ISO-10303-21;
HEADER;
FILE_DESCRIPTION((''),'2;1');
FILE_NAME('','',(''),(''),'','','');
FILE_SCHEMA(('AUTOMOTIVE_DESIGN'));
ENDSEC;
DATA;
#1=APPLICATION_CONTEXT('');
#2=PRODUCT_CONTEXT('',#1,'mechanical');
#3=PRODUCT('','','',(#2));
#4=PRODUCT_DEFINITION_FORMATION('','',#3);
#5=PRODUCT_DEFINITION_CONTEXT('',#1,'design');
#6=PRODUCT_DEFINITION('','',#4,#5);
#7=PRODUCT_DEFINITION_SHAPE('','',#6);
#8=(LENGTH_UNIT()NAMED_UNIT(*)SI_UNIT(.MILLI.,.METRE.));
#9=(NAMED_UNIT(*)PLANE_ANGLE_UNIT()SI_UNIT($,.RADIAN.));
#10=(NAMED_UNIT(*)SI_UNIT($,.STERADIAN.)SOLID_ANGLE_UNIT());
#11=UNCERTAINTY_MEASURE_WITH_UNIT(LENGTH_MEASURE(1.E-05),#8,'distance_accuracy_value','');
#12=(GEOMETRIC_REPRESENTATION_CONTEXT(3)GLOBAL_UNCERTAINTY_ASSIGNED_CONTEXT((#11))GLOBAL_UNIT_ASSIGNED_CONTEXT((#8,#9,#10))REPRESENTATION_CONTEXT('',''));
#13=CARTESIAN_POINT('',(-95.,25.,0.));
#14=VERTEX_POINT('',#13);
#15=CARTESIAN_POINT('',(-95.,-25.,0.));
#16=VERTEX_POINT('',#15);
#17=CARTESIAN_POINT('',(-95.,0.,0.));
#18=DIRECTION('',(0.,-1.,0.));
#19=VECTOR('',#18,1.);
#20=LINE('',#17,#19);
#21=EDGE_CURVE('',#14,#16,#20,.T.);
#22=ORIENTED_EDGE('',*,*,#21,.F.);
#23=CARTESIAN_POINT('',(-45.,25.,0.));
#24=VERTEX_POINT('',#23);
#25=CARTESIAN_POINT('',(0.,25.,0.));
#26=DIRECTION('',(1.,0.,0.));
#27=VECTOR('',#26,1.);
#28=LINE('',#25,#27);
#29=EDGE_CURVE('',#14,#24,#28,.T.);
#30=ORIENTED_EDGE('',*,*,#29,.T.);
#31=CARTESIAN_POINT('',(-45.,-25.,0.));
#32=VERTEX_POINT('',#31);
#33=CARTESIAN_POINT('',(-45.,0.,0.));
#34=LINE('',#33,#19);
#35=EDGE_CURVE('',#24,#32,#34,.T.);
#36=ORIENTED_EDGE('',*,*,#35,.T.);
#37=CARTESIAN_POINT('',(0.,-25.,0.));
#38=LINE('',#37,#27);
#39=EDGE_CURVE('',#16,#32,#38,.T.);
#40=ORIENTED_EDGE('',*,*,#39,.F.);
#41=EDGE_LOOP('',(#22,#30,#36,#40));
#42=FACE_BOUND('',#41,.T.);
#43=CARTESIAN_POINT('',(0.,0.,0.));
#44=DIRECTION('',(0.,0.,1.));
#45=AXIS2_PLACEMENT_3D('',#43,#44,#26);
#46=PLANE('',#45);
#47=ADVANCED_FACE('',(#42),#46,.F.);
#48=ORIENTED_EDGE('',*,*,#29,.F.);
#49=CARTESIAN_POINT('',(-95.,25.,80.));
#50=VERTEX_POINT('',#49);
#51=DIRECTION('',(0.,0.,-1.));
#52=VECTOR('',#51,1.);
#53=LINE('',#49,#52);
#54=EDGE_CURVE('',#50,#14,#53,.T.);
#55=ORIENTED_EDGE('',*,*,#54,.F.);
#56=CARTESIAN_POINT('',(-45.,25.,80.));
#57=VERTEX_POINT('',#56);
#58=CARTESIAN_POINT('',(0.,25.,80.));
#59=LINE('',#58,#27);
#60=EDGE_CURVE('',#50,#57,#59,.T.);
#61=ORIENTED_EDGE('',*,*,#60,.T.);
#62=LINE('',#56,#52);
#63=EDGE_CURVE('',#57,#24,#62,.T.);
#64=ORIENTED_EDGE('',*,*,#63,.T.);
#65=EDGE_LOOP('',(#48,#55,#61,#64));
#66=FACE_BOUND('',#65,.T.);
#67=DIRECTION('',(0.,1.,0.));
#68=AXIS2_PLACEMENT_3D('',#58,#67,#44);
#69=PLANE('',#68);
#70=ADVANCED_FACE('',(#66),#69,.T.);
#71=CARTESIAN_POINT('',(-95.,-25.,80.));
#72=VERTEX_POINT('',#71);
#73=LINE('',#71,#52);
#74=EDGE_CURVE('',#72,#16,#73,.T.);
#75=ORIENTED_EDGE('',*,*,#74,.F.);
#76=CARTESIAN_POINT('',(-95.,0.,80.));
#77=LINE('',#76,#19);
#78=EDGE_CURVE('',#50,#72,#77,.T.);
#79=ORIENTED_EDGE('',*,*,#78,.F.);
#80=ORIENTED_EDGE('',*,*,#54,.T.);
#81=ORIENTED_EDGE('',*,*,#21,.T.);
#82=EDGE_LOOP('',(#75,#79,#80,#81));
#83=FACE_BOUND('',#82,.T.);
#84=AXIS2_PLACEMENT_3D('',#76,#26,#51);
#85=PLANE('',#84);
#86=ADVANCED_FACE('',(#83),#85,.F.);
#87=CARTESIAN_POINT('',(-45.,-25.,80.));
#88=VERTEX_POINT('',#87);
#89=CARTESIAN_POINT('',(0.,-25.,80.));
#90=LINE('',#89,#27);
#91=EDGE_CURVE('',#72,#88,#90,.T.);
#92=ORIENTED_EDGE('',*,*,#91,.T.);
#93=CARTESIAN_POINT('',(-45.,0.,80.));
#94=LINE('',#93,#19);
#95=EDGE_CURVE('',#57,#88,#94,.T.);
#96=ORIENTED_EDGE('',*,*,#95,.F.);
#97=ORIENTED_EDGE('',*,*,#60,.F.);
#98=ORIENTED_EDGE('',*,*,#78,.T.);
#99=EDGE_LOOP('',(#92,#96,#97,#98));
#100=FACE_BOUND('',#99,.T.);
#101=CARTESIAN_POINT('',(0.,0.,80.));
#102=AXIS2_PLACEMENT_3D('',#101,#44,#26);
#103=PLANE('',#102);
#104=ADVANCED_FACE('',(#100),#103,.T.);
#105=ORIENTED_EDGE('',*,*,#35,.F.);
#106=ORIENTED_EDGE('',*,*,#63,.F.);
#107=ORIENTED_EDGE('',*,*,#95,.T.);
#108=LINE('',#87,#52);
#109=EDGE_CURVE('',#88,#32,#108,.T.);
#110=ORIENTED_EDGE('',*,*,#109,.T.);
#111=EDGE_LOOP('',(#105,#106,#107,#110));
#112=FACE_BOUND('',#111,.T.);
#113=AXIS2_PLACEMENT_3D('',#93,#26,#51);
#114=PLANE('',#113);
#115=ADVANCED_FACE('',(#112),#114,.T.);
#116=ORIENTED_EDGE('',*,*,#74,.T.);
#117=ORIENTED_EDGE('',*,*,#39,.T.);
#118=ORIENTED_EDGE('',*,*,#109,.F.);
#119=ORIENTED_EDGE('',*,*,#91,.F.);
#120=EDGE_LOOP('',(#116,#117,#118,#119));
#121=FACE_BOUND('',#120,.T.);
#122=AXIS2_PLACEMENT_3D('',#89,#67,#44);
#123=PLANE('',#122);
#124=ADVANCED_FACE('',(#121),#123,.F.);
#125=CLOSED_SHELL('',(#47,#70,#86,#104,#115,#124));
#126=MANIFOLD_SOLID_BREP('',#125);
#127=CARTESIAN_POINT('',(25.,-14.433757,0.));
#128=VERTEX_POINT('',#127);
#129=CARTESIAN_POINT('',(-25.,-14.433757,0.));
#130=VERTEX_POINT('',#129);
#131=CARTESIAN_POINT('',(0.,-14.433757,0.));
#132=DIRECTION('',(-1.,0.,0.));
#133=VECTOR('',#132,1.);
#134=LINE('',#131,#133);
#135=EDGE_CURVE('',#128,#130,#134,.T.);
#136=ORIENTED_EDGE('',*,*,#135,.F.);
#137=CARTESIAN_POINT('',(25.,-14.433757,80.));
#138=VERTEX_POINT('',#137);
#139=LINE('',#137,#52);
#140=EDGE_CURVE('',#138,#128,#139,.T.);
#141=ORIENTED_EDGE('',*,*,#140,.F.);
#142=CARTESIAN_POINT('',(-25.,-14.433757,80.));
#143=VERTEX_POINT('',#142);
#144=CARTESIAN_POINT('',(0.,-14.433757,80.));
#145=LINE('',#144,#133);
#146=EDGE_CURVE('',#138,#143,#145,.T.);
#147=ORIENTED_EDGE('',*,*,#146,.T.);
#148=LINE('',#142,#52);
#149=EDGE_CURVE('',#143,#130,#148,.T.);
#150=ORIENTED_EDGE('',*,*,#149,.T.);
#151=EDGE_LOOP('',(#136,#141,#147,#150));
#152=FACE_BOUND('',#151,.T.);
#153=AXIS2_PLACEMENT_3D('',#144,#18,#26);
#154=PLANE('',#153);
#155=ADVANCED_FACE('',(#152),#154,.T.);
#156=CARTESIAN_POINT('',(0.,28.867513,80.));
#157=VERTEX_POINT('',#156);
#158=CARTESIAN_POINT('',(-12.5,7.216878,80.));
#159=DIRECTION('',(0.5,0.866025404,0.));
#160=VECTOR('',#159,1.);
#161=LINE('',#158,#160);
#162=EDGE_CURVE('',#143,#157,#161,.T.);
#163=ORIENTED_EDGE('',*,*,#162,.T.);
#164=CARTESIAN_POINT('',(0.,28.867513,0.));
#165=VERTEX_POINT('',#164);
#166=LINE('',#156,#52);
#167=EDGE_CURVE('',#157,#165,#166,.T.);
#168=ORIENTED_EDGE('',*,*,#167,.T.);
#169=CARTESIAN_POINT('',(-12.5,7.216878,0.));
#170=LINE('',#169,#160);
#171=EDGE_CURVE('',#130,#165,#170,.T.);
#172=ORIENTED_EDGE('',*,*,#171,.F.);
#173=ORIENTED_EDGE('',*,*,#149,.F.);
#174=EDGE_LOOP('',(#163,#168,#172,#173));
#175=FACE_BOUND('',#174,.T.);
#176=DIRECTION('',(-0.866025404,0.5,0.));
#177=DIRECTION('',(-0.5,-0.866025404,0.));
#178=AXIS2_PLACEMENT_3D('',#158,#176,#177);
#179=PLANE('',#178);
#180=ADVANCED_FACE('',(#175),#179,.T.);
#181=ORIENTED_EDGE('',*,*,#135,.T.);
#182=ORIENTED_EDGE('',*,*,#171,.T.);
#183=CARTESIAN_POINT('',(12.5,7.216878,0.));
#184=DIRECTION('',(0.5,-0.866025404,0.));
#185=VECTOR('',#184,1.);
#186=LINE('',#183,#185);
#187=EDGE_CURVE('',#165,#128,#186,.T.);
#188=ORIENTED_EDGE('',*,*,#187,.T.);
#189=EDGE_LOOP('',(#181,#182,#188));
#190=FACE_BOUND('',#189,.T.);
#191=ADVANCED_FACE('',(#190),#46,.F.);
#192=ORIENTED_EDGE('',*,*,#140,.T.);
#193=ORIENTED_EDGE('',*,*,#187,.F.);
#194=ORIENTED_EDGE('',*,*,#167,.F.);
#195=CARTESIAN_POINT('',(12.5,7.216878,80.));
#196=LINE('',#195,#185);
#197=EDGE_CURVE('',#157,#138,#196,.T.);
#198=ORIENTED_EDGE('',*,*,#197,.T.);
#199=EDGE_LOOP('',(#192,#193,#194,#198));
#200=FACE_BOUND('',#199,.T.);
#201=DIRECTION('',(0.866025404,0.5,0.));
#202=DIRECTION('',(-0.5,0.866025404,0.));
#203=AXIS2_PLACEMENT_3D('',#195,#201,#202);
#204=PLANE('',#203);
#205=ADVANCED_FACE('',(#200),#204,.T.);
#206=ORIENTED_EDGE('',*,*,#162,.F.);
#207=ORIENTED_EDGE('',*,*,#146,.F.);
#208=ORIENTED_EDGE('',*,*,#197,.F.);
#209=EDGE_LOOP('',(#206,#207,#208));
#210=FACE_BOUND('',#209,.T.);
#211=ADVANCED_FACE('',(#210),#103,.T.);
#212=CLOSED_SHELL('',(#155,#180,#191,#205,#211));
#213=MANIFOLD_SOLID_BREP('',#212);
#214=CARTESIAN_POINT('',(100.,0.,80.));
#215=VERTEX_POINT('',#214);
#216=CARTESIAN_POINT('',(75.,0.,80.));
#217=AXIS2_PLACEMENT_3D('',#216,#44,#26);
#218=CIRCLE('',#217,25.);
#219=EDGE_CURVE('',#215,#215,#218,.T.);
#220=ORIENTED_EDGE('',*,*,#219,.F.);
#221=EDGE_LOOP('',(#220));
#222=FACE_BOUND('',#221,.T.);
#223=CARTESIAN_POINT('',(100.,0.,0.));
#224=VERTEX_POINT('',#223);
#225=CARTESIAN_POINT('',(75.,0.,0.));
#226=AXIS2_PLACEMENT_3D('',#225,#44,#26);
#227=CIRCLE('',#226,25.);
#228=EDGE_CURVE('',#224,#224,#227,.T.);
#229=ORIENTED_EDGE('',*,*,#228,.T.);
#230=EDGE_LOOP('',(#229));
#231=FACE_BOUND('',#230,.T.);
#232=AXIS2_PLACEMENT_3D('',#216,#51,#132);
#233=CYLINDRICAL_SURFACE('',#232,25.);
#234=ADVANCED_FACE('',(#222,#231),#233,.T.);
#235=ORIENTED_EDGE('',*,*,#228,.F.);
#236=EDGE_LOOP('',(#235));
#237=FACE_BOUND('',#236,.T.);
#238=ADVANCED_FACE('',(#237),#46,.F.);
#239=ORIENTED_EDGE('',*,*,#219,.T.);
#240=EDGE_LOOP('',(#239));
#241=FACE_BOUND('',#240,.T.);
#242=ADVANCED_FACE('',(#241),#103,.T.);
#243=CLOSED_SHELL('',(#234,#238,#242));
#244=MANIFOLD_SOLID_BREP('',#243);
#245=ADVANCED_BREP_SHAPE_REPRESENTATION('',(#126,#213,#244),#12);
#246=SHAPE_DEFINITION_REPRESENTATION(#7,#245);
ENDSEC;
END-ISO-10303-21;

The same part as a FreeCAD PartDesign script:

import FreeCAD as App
import Part
import Sketcher
from FreeCAD import Vector
Q = App.Units.Quantity


def add_polygon(sketch, points):
    """Adds a closed chain of lines whose ends are joined by coincident constraints."""
    first, n = sketch.GeometryCount, len(points)
    for a, b in zip(points, points[1:] + points[:1]):
        sketch.addGeometry(Part.LineSegment(App.Vector(*a, 0), App.Vector(*b, 0)), False)
    for i in range(n):
        sketch.addConstraint(Sketcher.Constraint("Coincident", first + i, 2, first + (i + 1) % n, 1))

doc = App.newDocument("Part")
body = doc.addObject("PartDesign::Body", "Body")

sketch1 = body.newObject("Sketcher::SketchObject", "Sketch")
sketch1.AttachmentSupport = (doc.getObject("XY_Plane"), [""])
sketch1.MapMode = "FlatFace"
sketch1.addGeometry(Part.Circle(Vector(75, 0, 0), Vector(0, 0, 1), 25), False)
sketch1.addConstraint([
    Sketcher.Constraint("PointOnObject", 0, 3, -1),
    Sketcher.Constraint("Diameter", 0, Q("50 mm")),
    Sketcher.Constraint("DistanceX", -1, 1, 0, 3, Q("75 mm")),
])
pad1 = body.newObject("PartDesign::Pad", "Pad")
pad1.Profile = sketch1
pad1.Length = 80
body2 = doc.addObject("PartDesign::Body", "Body001")

sketch2 = body2.newObject("Sketcher::SketchObject", "Sketch001")
sketch2.AttachmentSupport = (doc.getObject("XY_Plane001"), [""])
sketch2.MapMode = "FlatFace"
add_polygon(sketch2, [(0, 29), (-25, -14), (25, -14)])
sketch2.addConstraint([
    Sketcher.Constraint("Horizontal", 1),
    Sketcher.Constraint("PointOnObject", 2, 2, -2),
    Sketcher.Constraint("Equal", 0, 2),
    Sketcher.Constraint("DistanceX", 1, 1, 1, 2, Q("50 mm")),
    Sketcher.Constraint("Angle", 0, Q("-120 deg")),
    Sketcher.Constraint("DistanceY", 0, 2, -1, 1, Q("14.433757 mm")),
])
pad2 = body2.newObject("PartDesign::Pad", "Pad001")
pad2.Profile = sketch2
pad2.Length = 80
body3 = doc.addObject("PartDesign::Body", "Body002")

sketch3 = body3.newObject("Sketcher::SketchObject", "Sketch002")
sketch3.AttachmentSupport = (doc.getObject("XY_Plane002"), [""])
sketch3.MapMode = "FlatFace"
add_polygon(sketch3, [(-95, 25), (-95, -25), (-45, -25), (-45, 25)])
sketch3.addConstraint([
    Sketcher.Constraint("Vertical", 0),
    Sketcher.Constraint("Horizontal", 1),
    Sketcher.Constraint("Vertical", 2),
    Sketcher.Constraint("Horizontal", 3),
    Sketcher.Constraint("Equal", 3, 0),
    Sketcher.Constraint("DistanceX", 1, 1, 1, 2, Q("50 mm")),
    Sketcher.Constraint("DistanceX", 0, 2, -1, 1, Q("95 mm")),
    Sketcher.Constraint("DistanceY", 0, 2, -1, 1, Q("25 mm")),
])
pad3 = body3.newObject("PartDesign::Pad", "Pad002")
pad3.Profile = sketch3
pad3.Length = 80

doc.recompute()
